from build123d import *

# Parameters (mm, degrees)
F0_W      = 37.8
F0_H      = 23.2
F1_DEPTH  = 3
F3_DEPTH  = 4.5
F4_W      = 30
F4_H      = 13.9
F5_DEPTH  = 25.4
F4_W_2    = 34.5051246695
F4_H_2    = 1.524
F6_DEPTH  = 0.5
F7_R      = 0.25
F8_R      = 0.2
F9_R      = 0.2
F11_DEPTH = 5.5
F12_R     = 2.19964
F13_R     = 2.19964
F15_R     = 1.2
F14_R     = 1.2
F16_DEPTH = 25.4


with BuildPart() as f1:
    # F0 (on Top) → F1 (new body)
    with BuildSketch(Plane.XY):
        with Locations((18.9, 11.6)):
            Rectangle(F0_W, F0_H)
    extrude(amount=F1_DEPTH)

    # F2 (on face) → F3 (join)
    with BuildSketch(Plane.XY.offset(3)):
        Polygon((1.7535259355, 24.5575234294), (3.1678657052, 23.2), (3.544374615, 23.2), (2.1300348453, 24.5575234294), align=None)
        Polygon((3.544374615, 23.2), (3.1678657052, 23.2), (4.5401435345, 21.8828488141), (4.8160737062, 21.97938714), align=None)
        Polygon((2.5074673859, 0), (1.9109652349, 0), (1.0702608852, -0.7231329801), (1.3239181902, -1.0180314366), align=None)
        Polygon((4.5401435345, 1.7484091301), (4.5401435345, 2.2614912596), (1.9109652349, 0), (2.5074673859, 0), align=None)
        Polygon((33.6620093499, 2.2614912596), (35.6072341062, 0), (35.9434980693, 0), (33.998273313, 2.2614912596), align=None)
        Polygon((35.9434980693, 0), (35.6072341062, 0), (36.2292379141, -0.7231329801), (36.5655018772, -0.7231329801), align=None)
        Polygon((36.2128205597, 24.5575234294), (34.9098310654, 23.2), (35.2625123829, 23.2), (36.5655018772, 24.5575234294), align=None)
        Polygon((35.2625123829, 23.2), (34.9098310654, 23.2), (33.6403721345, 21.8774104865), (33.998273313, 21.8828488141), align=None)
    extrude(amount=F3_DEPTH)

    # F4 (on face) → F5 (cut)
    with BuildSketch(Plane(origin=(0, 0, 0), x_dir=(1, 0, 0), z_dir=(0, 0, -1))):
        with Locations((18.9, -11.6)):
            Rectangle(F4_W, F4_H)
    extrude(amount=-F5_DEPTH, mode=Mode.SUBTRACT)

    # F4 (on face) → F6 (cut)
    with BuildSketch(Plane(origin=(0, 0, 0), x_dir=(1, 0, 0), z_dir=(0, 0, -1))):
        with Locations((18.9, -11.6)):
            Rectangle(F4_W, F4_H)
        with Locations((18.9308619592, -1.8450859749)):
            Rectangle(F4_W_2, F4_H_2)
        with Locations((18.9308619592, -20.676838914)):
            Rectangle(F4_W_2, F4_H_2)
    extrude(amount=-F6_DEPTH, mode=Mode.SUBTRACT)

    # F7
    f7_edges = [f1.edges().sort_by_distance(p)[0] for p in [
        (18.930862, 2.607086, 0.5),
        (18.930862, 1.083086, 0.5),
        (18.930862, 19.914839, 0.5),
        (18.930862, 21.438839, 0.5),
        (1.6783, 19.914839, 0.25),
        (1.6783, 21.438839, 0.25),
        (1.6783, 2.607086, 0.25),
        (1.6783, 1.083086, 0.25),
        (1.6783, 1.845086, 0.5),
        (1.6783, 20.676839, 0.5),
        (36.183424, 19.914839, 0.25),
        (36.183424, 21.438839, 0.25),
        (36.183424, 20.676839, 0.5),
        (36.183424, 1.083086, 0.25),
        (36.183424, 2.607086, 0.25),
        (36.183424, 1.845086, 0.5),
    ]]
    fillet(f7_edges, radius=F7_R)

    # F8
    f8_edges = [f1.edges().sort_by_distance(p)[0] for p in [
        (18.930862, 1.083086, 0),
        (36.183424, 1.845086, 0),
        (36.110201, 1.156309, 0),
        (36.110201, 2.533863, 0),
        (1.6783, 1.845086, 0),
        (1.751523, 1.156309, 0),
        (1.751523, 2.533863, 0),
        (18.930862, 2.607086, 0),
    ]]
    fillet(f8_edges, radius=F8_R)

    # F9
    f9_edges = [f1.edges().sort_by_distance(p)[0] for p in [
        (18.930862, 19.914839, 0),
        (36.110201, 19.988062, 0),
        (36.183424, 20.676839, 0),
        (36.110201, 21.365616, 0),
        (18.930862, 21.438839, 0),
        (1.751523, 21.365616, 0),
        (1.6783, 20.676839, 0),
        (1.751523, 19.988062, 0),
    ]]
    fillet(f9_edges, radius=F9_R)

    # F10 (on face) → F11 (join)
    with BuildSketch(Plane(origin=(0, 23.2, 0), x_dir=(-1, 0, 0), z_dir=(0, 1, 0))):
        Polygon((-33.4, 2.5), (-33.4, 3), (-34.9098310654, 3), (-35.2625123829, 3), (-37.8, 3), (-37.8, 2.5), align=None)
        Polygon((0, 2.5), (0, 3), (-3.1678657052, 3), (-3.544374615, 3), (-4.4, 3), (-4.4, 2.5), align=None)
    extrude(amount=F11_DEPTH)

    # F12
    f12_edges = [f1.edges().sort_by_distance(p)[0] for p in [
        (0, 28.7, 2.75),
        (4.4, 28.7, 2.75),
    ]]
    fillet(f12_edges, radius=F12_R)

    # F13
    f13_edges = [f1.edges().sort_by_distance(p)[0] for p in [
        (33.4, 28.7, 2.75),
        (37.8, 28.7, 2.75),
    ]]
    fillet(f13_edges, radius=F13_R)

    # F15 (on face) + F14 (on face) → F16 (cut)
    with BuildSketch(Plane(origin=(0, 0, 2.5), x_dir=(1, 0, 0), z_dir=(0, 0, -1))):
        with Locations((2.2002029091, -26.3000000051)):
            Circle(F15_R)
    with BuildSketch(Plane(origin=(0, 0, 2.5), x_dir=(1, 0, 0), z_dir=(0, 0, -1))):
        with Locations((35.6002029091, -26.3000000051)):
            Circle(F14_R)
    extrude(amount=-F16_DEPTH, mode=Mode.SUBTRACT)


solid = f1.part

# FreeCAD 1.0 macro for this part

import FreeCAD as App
import Part
import Sketcher


def edges_at(feature, points):
    """Names of the edges that pass closest to the given points."""
    edges = feature.Shape.Edges
    near = lambda p: min(range(len(edges)), key=lambda i: edges[i].distToShape(Part.Vertex(*p))[0])
    return sorted({f"Edge{near(p) + 1}" for p in points})


def add_polygon(sketch, points):
    """Adds a closed chain of lines whose ends are joined by coincident constraints."""
    first, n = sketch.GeometryCount, len(points)
    for a, b in zip(points, points[1:] + points[:1]):
        sketch.addGeometry(Part.LineSegment(App.Vector(*a, 0), App.Vector(*b, 0)), False)
    for i in range(n):
        sketch.addConstraint(Sketcher.Constraint("Coincident", first + i, 2, first + (i + 1) % n, 1))

doc = App.newDocument("Part")
body = doc.addObject("PartDesign::Body", "Body")

sketch1 = body.newObject("Sketcher::SketchObject", "Sketch")
sketch1.AttachmentSupport = (doc.getObject("XY_Plane"), [""])
sketch1.MapMode = "FlatFace"
add_polygon(sketch1, [(0, 23), (0, 0), (38, 0), (38, 23)])
sketch1.addConstraint([
    Sketcher.Constraint("Vertical", 0),
    Sketcher.Constraint("Horizontal", 1),
    Sketcher.Constraint("Vertical", 2),
    Sketcher.Constraint("Horizontal", 3),
    Sketcher.Constraint("Coincident", 0, 2, -1, 1),
    Sketcher.Constraint("DistanceX", 1, 1, 1, 2, 37.8),
    Sketcher.Constraint("DistanceY", 0, 2, 0, 1, 23.2),
])
pad1 = body.newObject("PartDesign::Pad", "Pad")
pad1.Profile = sketch1
pad1.Length = 3

sketch2 = body.newObject("Sketcher::SketchObject", "Sketch001")
sketch2.AttachmentSupport = (doc.getObject("XY_Plane"), [""])
sketch2.MapMode = "FlatFace"
sketch2.AttachmentOffset = App.Placement(App.Vector(0, 0, 3), App.Rotation())
add_polygon(sketch2, [(1.75, 24.56), (3.17, 23.2), (4.54, 21.88), (4.82, 21.98), (3.54, 23.2), (2.13, 24.56)])
add_polygon(sketch2, [(1.91, 0), (1.07, -0.72), (1.32, -1.02), (2.51, 0), (4.54, 1.75), (4.54, 2.26)])
add_polygon(sketch2, [(33.66, 2.26), (35.61, 0), (36.23, -0.72), (36.57, -0.72), (35.94, 0), (34, 2.26)])
add_polygon(sketch2, [(36.21, 24.56), (34.91, 23.2), (33.64, 21.88), (34, 21.88), (35.26, 23.2), (36.57, 24.56)])
sketch2.addConstraint([
    Sketcher.Constraint("Horizontal", 5),
    Sketcher.Constraint("Vertical", 10),
    Sketcher.Constraint("Horizontal", 14),
    Sketcher.Constraint("Horizontal", 17),
    Sketcher.Constraint("Horizontal", 23),
    Sketcher.Constraint("PointOnObject", 8, 2, -1),
    Sketcher.Constraint("PointOnObject", 11, 2, -1),
    Sketcher.Constraint("PointOnObject", 12, 2, -1),
    Sketcher.Constraint("PointOnObject", 15, 2, -1),
    Sketcher.Constraint("Parallel", 0, 1),
    Sketcher.Constraint("Parallel", 1, 3),
    Sketcher.Constraint("Parallel", 3, 4),
    Sketcher.Constraint("Perpendicular", 6, 7),
    Sketcher.Constraint("Perpendicular", 7, 8),
    Sketcher.Constraint("Parallel", 8, 9),
    Sketcher.Constraint("Parallel", 9, 11),
    Sketcher.Constraint("Perpendicular", 11, 12),
    Sketcher.Constraint("Parallel", 12, 13),
    Sketcher.Constraint("Parallel", 13, 15),
    Sketcher.Constraint("Parallel", 15, 16),
    Sketcher.Constraint("Perpendicular", 4, 18),
    Sketcher.Constraint("Parallel", 18, 19),
    Sketcher.Constraint("Parallel", 19, 21),
    Sketcher.Constraint("Parallel", 21, 22),
    Sketcher.Constraint("Horizontal", 0, 2, 3, 2),
    Sketcher.Constraint("Horizontal", 6, 2, 13, 2),
    Sketcher.Constraint("Horizontal", 10, 2, 16, 2),
    Sketcher.Constraint("Horizontal", 3, 2, 18, 2),
    Sketcher.Constraint("Horizontal", 1, 2, 20, 2),
    Sketcher.Constraint("Horizontal", 18, 2, 21, 2),
    Sketcher.Constraint("Horizontal", 5, 2, 22, 2),
    Sketcher.Constraint("Vertical", 1, 2, 9, 2),
    Sketcher.Constraint("Vertical", 16, 2, 20, 2),
    Sketcher.Constraint("Vertical", 14, 2, 22, 2),
    Sketcher.Constraint("DistanceY", -1, 1, 0, 2, 23.2),
    Sketcher.Constraint("Distance", 3, 1.762701),
    Sketcher.Constraint("Distance", 21, 1.825702),
    Sketcher.Constraint("DistanceX", 5, 2, 5, 1, 0.376509),
    Sketcher.Constraint("DistanceX", 23, 2, 23, 1, 0.352681),
    Sketcher.Constraint("DistanceX", -1, 1, 14, 2, 36.565502),
    Sketcher.Constraint("DistanceX", -1, 1, 15, 2, 35.943498),
    Sketcher.Constraint("DistanceX", 3, 2, 2, 2, 1.271699),
    Sketcher.Constraint("DistanceY", 7, 2, 6, 2, 0.294898),
    Sketcher.Constraint("DistanceX", 8, 2, 0, 2, 0.660398),
    Sketcher.Constraint("DistanceX", 19, 2, 16, 2, 0.357901),
    Sketcher.Constraint("Distance", 6, 1.108921),
    Sketcher.Constraint("DistanceX", 14, 1, 14, 2, 0.336264),
    Sketcher.Constraint("DistanceX", -1, 1, 6, 2, 1.070261),
])
pad2 = body.newObject("PartDesign::Pad", "Pad001")
pad2.Profile = sketch2
pad2.Length = 4.5

sketch3 = body.newObject("Sketcher::SketchObject", "Sketch002")
sketch3.AttachmentSupport = (doc.getObject("XY_Plane"), [""])
sketch3.MapMode = "FlatFace"
add_polygon(sketch3, [(4, 5), (4, 19), (34, 19), (34, 5)])
sketch3.addConstraint([
    Sketcher.Constraint("Vertical", 0),
    Sketcher.Constraint("Horizontal", 1),
    Sketcher.Constraint("Vertical", 2),
    Sketcher.Constraint("Horizontal", 3),
    Sketcher.Constraint("DistanceX", 1, 1, 1, 2, 30.0),
    Sketcher.Constraint("DistanceY", 0, 1, 0, 2, 13.9),
    Sketcher.Constraint("DistanceX", -1, 1, 0, 2, 3.9),
    Sketcher.Constraint("DistanceY", -1, 1, 0, 2, 18.55),
])
pocket1 = body.newObject("PartDesign::Pocket", "Pocket")
pocket1.Profile = sketch3
pocket1.Length = 25.4
pocket1.Reversed = True

sketch4 = body.newObject("Sketcher::SketchObject", "Sketch003")
sketch4.AttachmentSupport = (doc.getObject("XY_Plane"), [""])
sketch4.MapMode = "FlatFace"
add_polygon(sketch4, [(3.9, 4.7), (3.9, 18.6), (33.9, 18.6), (33.9, 4.7)])
add_polygon(sketch4, [(1.7, 1.1), (1.7, 2.6), (36.2, 2.6), (36.2, 1.1)])
add_polygon(sketch4, [(1.7, 19.9), (1.7, 21.4), (36.2, 21.4), (36.2, 19.9)])
sketch4.addConstraint([
    Sketcher.Constraint("Vertical", 0),
    Sketcher.Constraint("Horizontal", 1),
    Sketcher.Constraint("Vertical", 2),
    Sketcher.Constraint("Horizontal", 3),
    Sketcher.Constraint("Vertical", 4),
    Sketcher.Constraint("Horizontal", 5),
    Sketcher.Constraint("Vertical", 6),
    Sketcher.Constraint("Horizontal", 7),
    Sketcher.Constraint("Vertical", 8),
    Sketcher.Constraint("Horizontal", 9),
    Sketcher.Constraint("Vertical", 10),
    Sketcher.Constraint("Horizontal", 11),
    Sketcher.Constraint("Vertical", 7, 2, 8, 2),
    Sketcher.Constraint("Vertical", 6, 2, 9, 2),
    Sketcher.Constraint("Equal", 6, 8),
    Sketcher.Constraint("DistanceX", 1, 1, 1, 2, 30.0),
    Sketcher.Constraint("DistanceY", 0, 1, 0, 2, 13.9),
    Sketcher.Constraint("DistanceX", -1, 1, 0, 2, 3.9),
    Sketcher.Constraint("DistanceY", 4, 1, 4, 2, 1.524),
    Sketcher.Constraint("DistanceY", -1, 1, 0, 2, 18.55),
    Sketcher.Constraint("DistanceX", -1, 1, 4, 2, 1.6783),
    Sketcher.Constraint("DistanceX", 5, 1, 5, 2, 34.505125),
    Sketcher.Constraint("DistanceY", -1, 1, 8, 2, 21.438839),
    Sketcher.Constraint("DistanceY", -1, 1, 4, 2, 2.607086),
])
pocket2 = body.newObject("PartDesign::Pocket", "Pocket001")
pocket2.Profile = sketch4
pocket2.Length = 0.5
pocket2.Reversed = True
doc.recompute()

fillet = body.newObject("PartDesign::Fillet", "Fillet")
fillet.Base = (pocket2, edges_at(pocket2, [
    (18.931, 2.607, 0.5),
    (18.931, 1.083, 0.5),
    (18.931, 19.915, 0.5),
    (18.931, 21.439, 0.5),
    (1.678, 19.915, 0.25),
    (1.678, 21.439, 0.25),
    (1.678, 2.607, 0.25),
    (1.678, 1.083, 0.25),
    (1.678, 1.845, 0.5),
    (1.678, 20.677, 0.5),
    (36.183, 19.915, 0.25),
    (36.183, 21.439, 0.25),
    (36.183, 20.677, 0.5),
    (36.183, 1.083, 0.25),
    (36.183, 2.607, 0.25),
    (36.183, 1.845, 0.5),
]))
fillet.Radius = 0.25
doc.recompute()

fillet2 = body.newObject("PartDesign::Fillet", "Fillet001")
fillet2.Base = (fillet, edges_at(fillet, [
    (18.931, 1.083, 0),
    (36.183, 1.845, 0),
    (36.11, 1.156, 0),
    (36.11, 2.534, 0),
    (1.678, 1.845, 0),
    (1.752, 1.156, 0),
    (1.752, 2.534, 0),
    (18.931, 2.607, 0),
]))
fillet2.Radius = 0.2
doc.recompute()

fillet3 = body.newObject("PartDesign::Fillet", "Fillet002")
fillet3.Base = (fillet2, edges_at(fillet2, [
    (18.931, 19.915, 0),
    (36.11, 19.988, 0),
    (36.183, 20.677, 0),
    (36.11, 21.366, 0),
    (18.931, 21.439, 0),
    (1.752, 21.366, 0),
    (1.678, 20.677, 0),
    (1.752, 19.988, 0),
]))
fillet3.Radius = 0.2

sketch5 = body.newObject("Sketcher::SketchObject", "Sketch004")
sketch5.AttachmentSupport = (doc.getObject("XZ_Plane"), [""])
sketch5.MapMode = "FlatFace"
sketch5.AttachmentOffset = App.Placement(App.Vector(0, 0, -23.2), App.Rotation())
add_polygon(sketch5, [(33.4, 2.5), (33.4, 3), (37.8, 3), (37.8, 2.5)])
add_polygon(sketch5, [(0, 2.5), (0, 3), (4.4, 3), (4.4, 2.5)])
sketch5.addConstraint([
    Sketcher.Constraint("Vertical", 0),
    Sketcher.Constraint("Horizontal", 1),
    Sketcher.Constraint("Vertical", 2),
    Sketcher.Constraint("Horizontal", 3),
    Sketcher.Constraint("Vertical", 4),
    Sketcher.Constraint("Horizontal", 5),
    Sketcher.Constraint("Vertical", 6),
    Sketcher.Constraint("Horizontal", 7),
    Sketcher.Constraint("PointOnObject", 4, 2, -2),
    Sketcher.Constraint("Horizontal", 1, 2, 4, 2),
    Sketcher.Constraint("Horizontal", 3, 2, 6, 2),
    Sketcher.Constraint("Equal", 3, 5),
    Sketcher.Constraint("DistanceX", 1, 1, 1, 2, 4.4),
    Sketcher.Constraint("DistanceY", 0, 1, 0, 2, 0.5),
    Sketcher.Constraint("DistanceY", -1, 1, 0, 2, 3.0),
    Sketcher.Constraint("DistanceX", 5, 2, 0, 2, 29.0),
])
pad3 = body.newObject("PartDesign::Pad", "Pad002")
pad3.Profile = sketch5
pad3.Length = 5.5
pad3.Reversed = True
doc.recompute()

fillet4 = body.newObject("PartDesign::Fillet", "Fillet003")
fillet4.Base = (pad3, edges_at(pad3, [(0, 28.7, 2.75), (4.4, 28.7, 2.75)]))
fillet4.Radius = 2.19964
doc.recompute()

fillet5 = body.newObject("PartDesign::Fillet", "Fillet004")
fillet5.Base = (fillet4, edges_at(fillet4, [(33.4, 28.7, 2.75), (37.8, 28.7, 2.75)]))
fillet5.Radius = 2.19964

sketch6 = body.newObject("Sketcher::SketchObject", "Sketch005")
sketch6.AttachmentSupport = (doc.getObject("XY_Plane"), [""])
sketch6.MapMode = "FlatFace"
sketch6.AttachmentOffset = App.Placement(App.Vector(0, 0, 2.5), App.Rotation())
sketch6.addGeometry([
    Part.Circle(App.Vector(2.2, 26.3, 0), App.Vector(0, 0, 1), 1.2),
    Part.Circle(App.Vector(35.6, 26.3, 0), App.Vector(0, 0, 1), 1.2),
], False)
sketch6.addConstraint([
    Sketcher.Constraint("Equal", 0, 1),
    Sketcher.Constraint("Horizontal", 0, 3, 1, 3),
    Sketcher.Constraint("Diameter", 0, 2.4),
    Sketcher.Constraint("DistanceY", -1, 1, 0, 3, 26.3),
    Sketcher.Constraint("DistanceX", 0, 3, 1, 3, 33.4),
    Sketcher.Constraint("DistanceX", -1, 1, 0, 3, 2.200203),
])
pocket3 = body.newObject("PartDesign::Pocket", "Pocket002")
pocket3.Profile = sketch6
pocket3.Length = 25.4
pocket3.Reversed = True

doc.recompute()
